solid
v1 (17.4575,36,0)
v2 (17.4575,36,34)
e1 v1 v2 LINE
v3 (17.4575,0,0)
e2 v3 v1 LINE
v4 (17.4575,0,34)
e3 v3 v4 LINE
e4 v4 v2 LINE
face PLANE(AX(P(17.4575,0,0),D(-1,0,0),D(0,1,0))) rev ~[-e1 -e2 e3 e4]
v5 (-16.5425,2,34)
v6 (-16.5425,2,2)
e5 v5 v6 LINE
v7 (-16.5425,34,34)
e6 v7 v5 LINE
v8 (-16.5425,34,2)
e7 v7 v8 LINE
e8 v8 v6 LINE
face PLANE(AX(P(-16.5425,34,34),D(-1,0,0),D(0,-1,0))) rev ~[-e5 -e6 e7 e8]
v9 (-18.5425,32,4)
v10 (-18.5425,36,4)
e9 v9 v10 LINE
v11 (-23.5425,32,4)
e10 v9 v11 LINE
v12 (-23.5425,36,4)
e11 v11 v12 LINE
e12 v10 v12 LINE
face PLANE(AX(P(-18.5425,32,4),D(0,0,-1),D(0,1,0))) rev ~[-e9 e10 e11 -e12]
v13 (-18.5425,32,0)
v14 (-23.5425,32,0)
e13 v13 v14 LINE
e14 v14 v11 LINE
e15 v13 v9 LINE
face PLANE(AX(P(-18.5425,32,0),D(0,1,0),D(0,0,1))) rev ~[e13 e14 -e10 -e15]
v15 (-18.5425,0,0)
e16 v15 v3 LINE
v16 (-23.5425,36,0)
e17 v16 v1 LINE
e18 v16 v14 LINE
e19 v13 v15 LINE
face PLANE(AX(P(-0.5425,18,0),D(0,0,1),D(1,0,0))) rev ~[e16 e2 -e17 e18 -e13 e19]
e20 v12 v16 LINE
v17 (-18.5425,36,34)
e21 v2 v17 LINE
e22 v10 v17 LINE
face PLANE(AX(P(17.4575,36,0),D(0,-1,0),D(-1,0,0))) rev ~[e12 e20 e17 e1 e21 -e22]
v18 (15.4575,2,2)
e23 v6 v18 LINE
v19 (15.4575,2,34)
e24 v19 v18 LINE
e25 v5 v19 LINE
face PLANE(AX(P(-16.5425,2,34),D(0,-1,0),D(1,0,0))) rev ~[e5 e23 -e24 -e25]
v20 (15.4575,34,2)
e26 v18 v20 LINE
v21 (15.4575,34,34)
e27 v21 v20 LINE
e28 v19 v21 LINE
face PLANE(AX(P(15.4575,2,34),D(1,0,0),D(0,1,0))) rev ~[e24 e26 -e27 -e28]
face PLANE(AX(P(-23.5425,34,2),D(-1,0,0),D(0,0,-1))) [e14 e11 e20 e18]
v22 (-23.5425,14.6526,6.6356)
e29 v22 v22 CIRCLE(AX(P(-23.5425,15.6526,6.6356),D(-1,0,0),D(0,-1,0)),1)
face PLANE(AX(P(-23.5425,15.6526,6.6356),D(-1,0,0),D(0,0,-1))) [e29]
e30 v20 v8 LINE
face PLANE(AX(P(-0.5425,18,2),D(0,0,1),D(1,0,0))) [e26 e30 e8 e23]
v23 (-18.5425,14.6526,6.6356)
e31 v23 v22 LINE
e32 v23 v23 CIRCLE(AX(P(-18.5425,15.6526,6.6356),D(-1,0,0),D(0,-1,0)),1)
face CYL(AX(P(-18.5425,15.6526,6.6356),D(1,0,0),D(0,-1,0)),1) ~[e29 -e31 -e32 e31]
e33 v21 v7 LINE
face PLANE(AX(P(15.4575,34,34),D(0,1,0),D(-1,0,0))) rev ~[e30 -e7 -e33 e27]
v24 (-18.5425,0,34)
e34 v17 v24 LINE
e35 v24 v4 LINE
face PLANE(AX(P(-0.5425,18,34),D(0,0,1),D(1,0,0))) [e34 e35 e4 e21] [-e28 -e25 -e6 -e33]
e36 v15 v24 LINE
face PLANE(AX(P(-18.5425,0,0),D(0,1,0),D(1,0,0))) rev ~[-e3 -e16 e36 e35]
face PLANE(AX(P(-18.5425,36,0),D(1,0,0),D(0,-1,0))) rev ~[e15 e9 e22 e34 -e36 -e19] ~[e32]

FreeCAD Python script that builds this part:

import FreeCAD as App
import Part
import Sketcher
Q = App.Units.Quantity

doc = App.newDocument("Part")
params = doc.addObject("Spreadsheet::Sheet", "Params")
for row, (alias, value) in enumerate([
    ("sketch1_width", "36 mm"),
    ("pad1_length", "34 mm"),
    ("sketch2_width", "32 mm"),
    ("pocket1_length", "32 mm"),
    ("sketch3_width", "4 mm"),
    ("pad2_length", "5 mm"),
    ("sketch4_diameter", "2 mm"),
    ("pad3_length", "5 mm"),
], start=1):
    params.set(f"A{row}", alias)
    params.set(f"B{row}", "=" + value)
    params.setAlias(f"B{row}", alias)

body = doc.addObject("PartDesign::Body", "Body")

sketch1 = body.newObject("Sketcher::SketchObject", "Sketch")
sketch1.AttachmentSupport = (doc.getObject("XY_Plane"), [""])
sketch1.MapMode = "FlatFace"
sketch1.addGeometry(Part.LineSegment(App.Vector(-18.5425, 36, 0), App.Vector(-18.5425, 0, 0)), False)
sketch1.addGeometry(Part.LineSegment(App.Vector(-18.5425, 0, 0), App.Vector(17.4575, 0, 0)), False)
sketch1.addGeometry(Part.LineSegment(App.Vector(17.4575, 0, 0), App.Vector(17.4575, 36, 0)), False)
sketch1.addGeometry(Part.LineSegment(App.Vector(17.4575, 36, 0), App.Vector(-18.5425, 36, 0)), False)
sketch1.addConstraint(Sketcher.Constraint("Coincident", 0, 2, 1, 1))
sketch1.addConstraint(Sketcher.Constraint("Coincident", 1, 2, 2, 1))
sketch1.addConstraint(Sketcher.Constraint("Coincident", 2, 2, 3, 1))
sketch1.addConstraint(Sketcher.Constraint("Coincident", 3, 2, 0, 1))
sketch1.addConstraint(Sketcher.Constraint("Vertical", 0))
sketch1.addConstraint(Sketcher.Constraint("Horizontal", 1))
sketch1.addConstraint(Sketcher.Constraint("Vertical", 2))
sketch1.addConstraint(Sketcher.Constraint("Horizontal", 3))
sketch1.addConstraint(Sketcher.Constraint("PointOnObject", 0, 2, -1))
sketch1.addConstraint(Sketcher.Constraint("Equal", 3, 0))
sketch1.addConstraint(Sketcher.Constraint("DistanceX", 1, 1, 1, 2, Q("36 mm")))
sketch1.addConstraint(Sketcher.Constraint("DistanceX", 0, 2, -1, 1, Q("18.5425 mm")))
sketch1.setExpression("Constraints[10]", "Params.sketch1_width")
pad1 = body.newObject("PartDesign::Pad", "Pad")
pad1.Profile = sketch1
pad1.setExpression("Length", "Params.pad1_length")

sketch2 = body.newObject("Sketcher::SketchObject", "Sketch001")
sketch2.AttachmentSupport = (doc.getObject("XY_Plane"), [""])
sketch2.MapMode = "FlatFace"
sketch2.AttachmentOffset = App.Placement(App.Vector(0, 0, 34), App.Rotation())
sketch2.addGeometry(Part.LineSegment(App.Vector(-16.5425, 34, 0), App.Vector(-16.5425, 2, 0)), False)
sketch2.addGeometry(Part.LineSegment(App.Vector(-16.5425, 2, 0), App.Vector(15.4575, 2, 0)), False)
sketch2.addGeometry(Part.LineSegment(App.Vector(15.4575, 2, 0), App.Vector(15.4575, 34, 0)), False)
sketch2.addGeometry(Part.LineSegment(App.Vector(15.4575, 34, 0), App.Vector(-16.5425, 34, 0)), False)
sketch2.addConstraint(Sketcher.Constraint("Coincident", 0, 2, 1, 1))
sketch2.addConstraint(Sketcher.Constraint("Coincident", 1, 2, 2, 1))
sketch2.addConstraint(Sketcher.Constraint("Coincident", 2, 2, 3, 1))
sketch2.addConstraint(Sketcher.Constraint("Coincident", 3, 2, 0, 1))
sketch2.addConstraint(Sketcher.Constraint("Vertical", 0))
sketch2.addConstraint(Sketcher.Constraint("Horizontal", 1))
sketch2.addConstraint(Sketcher.Constraint("Vertical", 2))
sketch2.addConstraint(Sketcher.Constraint("Horizontal", 3))
sketch2.addConstraint(Sketcher.Constraint("Equal", 3, 0))
sketch2.addConstraint(Sketcher.Constraint("DistanceX", 1, 1, 1, 2, Q("32 mm")))
sketch2.addConstraint(Sketcher.Constraint("DistanceY", -1, 1, 0, 2, Q("2 mm")))
sketch2.addConstraint(Sketcher.Constraint("DistanceX", 0, 2, -1, 1, Q("16.5425 mm")))
sketch2.setExpression("Constraints[9]", "Params.sketch2_width")
pocket1 = body.newObject("PartDesign::Pocket", "Pocket")
pocket1.Profile = sketch2
pocket1.setExpression("Length", "Params.pocket1_length")

sketch3 = body.newObject("Sketcher::SketchObject", "Sketch002")
sketch3.AttachmentSupport = (doc.getObject("YZ_Plane"), [""])
sketch3.MapMode = "FlatFace"
sketch3.AttachmentOffset = App.Placement(App.Vector(0, 0, -18.5425), App.Rotation())
sketch3.addGeometry(Part.LineSegment(App.Vector(36, 4, 0), App.Vector(36, 0, 0)), False)
sketch3.addGeometry(Part.LineSegment(App.Vector(36, 0, 0), App.Vector(32, 0, 0)), False)
sketch3.addGeometry(Part.LineSegment(App.Vector(32, 0, 0), App.Vector(32, 4, 0)), False)
sketch3.addGeometry(Part.LineSegment(App.Vector(32, 4, 0), App.Vector(36, 4, 0)), False)
sketch3.addConstraint(Sketcher.Constraint("Coincident", 0, 2, 1, 1))
sketch3.addConstraint(Sketcher.Constraint("Coincident", 1, 2, 2, 1))
sketch3.addConstraint(Sketcher.Constraint("Coincident", 2, 2, 3, 1))
sketch3.addConstraint(Sketcher.Constraint("Coincident", 3, 2, 0, 1))
sketch3.addConstraint(Sketcher.Constraint("Vertical", 0))
sketch3.addConstraint(Sketcher.Constraint("Horizontal", 1))
sketch3.addConstraint(Sketcher.Constraint("Vertical", 2))
sketch3.addConstraint(Sketcher.Constraint("Horizontal", 3))
sketch3.addConstraint(Sketcher.Constraint("PointOnObject", 0, 2, -1))
sketch3.addConstraint(Sketcher.Constraint("Equal", 3, 0))
sketch3.addConstraint(Sketcher.Constraint("DistanceX", 1, 2, 1, 1, Q("4 mm")))
sketch3.addConstraint(Sketcher.Constraint("DistanceX", -1, 1, 0, 2, Q("36 mm")))
sketch3.setExpression("Constraints[10]", "Params.sketch3_width")
pad2 = body.newObject("PartDesign::Pad", "Pad001")
pad2.Profile = sketch3
pad2.setExpression("Length", "Params.pad2_length")
pad2.Reversed = True

sketch4 = body.newObject("Sketcher::SketchObject", "Sketch003")
sketch4.AttachmentSupport = (doc.getObject("YZ_Plane"), [""])
sketch4.MapMode = "FlatFace"
sketch4.AttachmentOffset = App.Placement(App.Vector(0, 0, -18.5425), App.Rotation())
sketch4.addGeometry(Part.Circle(App.Vector(15.6526, 6.6356, 0), App.Vector(0, 0, 1), 1), False)
sketch4.addConstraint(Sketcher.Constraint("Diameter", 0, Q("2 mm")))
sketch4.addConstraint(Sketcher.Constraint("DistanceX", -1, 1, 0, 3, Q("15.6526 mm")))
sketch4.addConstraint(Sketcher.Constraint("DistanceY", -1, 1, 0, 3, Q("6.6356 mm")))
sketch4.setExpression("Constraints[0]", "Params.sketch4_diameter")
pad3 = body.newObject("PartDesign::Pad", "Pad002")
pad3.Profile = sketch4
pad3.setExpression("Length", "Params.pad3_length")
pad3.Reversed = True

doc.recompute()
